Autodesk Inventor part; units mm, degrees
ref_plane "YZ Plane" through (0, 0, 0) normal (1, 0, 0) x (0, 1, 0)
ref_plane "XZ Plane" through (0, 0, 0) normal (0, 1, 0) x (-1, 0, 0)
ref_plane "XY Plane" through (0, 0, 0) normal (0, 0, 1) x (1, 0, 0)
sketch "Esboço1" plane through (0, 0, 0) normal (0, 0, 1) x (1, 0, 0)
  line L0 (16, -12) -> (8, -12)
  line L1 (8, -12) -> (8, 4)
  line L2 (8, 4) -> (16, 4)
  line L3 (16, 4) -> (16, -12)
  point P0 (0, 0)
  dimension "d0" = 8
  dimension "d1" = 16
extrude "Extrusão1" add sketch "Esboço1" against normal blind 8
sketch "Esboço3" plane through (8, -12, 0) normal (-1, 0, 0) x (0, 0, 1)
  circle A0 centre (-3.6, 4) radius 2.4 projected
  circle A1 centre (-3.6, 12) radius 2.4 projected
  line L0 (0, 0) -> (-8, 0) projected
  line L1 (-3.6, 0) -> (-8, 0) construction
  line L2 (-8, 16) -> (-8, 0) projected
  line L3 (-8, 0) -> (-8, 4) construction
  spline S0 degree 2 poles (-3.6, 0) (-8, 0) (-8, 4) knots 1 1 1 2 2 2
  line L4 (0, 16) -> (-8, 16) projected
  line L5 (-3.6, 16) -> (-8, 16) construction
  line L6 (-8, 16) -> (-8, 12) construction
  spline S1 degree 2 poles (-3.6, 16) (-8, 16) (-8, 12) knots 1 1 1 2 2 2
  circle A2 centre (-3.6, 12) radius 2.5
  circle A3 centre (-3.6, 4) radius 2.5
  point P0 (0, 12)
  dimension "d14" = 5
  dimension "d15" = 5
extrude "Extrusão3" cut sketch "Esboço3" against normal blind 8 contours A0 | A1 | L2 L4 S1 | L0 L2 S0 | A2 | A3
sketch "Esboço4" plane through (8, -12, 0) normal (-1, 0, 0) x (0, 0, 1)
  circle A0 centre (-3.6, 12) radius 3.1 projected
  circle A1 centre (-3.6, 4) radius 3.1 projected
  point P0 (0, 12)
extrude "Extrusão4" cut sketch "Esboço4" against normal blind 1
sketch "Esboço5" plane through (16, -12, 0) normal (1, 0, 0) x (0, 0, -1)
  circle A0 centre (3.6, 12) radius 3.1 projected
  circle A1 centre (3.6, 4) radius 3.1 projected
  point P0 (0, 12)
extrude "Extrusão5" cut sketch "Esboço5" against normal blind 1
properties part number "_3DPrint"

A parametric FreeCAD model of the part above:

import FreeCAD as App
import Part
import Sketcher

doc = App.newDocument("Part")
body = doc.addObject("PartDesign::Body", "Body")

# Sketch on XY plane
sketch1 = body.newObject("Sketcher::SketchObject", "Sketch")
sketch1.AttachmentSupport = (doc.getObject("XY_Plane"), [""])
sketch1.MapMode = "FlatFace"
sketch1.addGeometry([
    Part.LineSegment(App.Vector(8, -12, 0), App.Vector(16, -12, 0)),
    Part.LineSegment(App.Vector(16, -12, 0), App.Vector(16, 4, 0)),
    Part.LineSegment(App.Vector(16, 4, 0), App.Vector(8, 4, 0)),
    Part.LineSegment(App.Vector(8, 4, 0), App.Vector(8, -12, 0)),
], False)
sketch1.addConstraint([
    Sketcher.Constraint("Coincident", 0, 2, 1, 1),
    Sketcher.Constraint("Coincident", 1, 2, 2, 1),
    Sketcher.Constraint("Coincident", 2, 2, 3, 1),
    Sketcher.Constraint("Coincident", 3, 2, 0, 1),
    Sketcher.Constraint("Horizontal", 0),
    Sketcher.Constraint("Vertical", 1),
    Sketcher.Constraint("Horizontal", 2),
    Sketcher.Constraint("Vertical", 3),
    Sketcher.Constraint("DistanceX", 0, 1, 0, 2, 8.0),
    Sketcher.Constraint("DistanceY", 1, 1, 1, 2, 16.0),
    Sketcher.Constraint("DistanceX", -1, 1, 0, 2, 16.0),
    Sketcher.Constraint("DistanceY", 0, 2, -1, 1, 12.0),
])
pad1 = body.newObject("PartDesign::Pad", "Pad")
pad1.Profile = sketch1
pad1.Length = 8
pad1.Reversed = True

# Sketch on YZ plane
sketch2 = body.newObject("Sketcher::SketchObject", "Sketch001")
sketch2.AttachmentSupport = (doc.getObject("YZ_Plane"), [""])
sketch2.MapMode = "FlatFace"
sketch2.AttachmentOffset = App.Placement(App.Vector(0, 0, 8), App.Rotation())
sketch2.addGeometry([
    Part.Circle(App.Vector(-8, -3.6, 0), App.Vector(0, 0, 1), 2.5),  # 0
    Part.Circle(App.Vector(0, -3.6, 0), App.Vector(0, 0, 1), 2.5),  # 1
    Part.LineSegment(App.Vector(4, -8, 0), App.Vector(0, -8, 0)),  # 2
    Part.BSplineCurve([App.Vector(4, -3.6, 0), App.Vector(4, -8, 0), App.Vector(0, -8, 0)], [3, 3], [1, 2], False, 2, [1, 1, 1], False),  # 3
    Part.LineSegment(App.Vector(4, -3.6, 0), App.Vector(4, -8, 0)),  # 4
    Part.LineSegment(App.Vector(-12, -8, 0), App.Vector(-12, -3.6, 0)),  # 5
    Part.BSplineCurve([App.Vector(-12, -3.6, 0), App.Vector(-12, -8, 0), App.Vector(-8, -8, 0)], [3, 3], [1, 2], False, 2, [1, 1, 1], False),  # 6
    Part.LineSegment(App.Vector(-8, -8, 0), App.Vector(-12, -8, 0)),  # 7
], False)
sketch2.addConstraint([
    Sketcher.Constraint("Block", 3),
    Sketcher.Constraint("Block", 6),
    Sketcher.Constraint("Coincident", 2, 2, 3, 2),
    Sketcher.Constraint("Coincident", 3, 1, 4, 1),
    Sketcher.Constraint("Coincident", 4, 2, 2, 1),
    Sketcher.Constraint("Coincident", 5, 2, 6, 1),
    Sketcher.Constraint("Coincident", 6, 2, 7, 1),
    Sketcher.Constraint("Coincident", 7, 2, 5, 1),
    Sketcher.Constraint("Horizontal", 2),
    Sketcher.Constraint("Vertical", 4),
    Sketcher.Constraint("Vertical", 5),
    Sketcher.Constraint("Horizontal", 7),
    Sketcher.Constraint("Equal", 0, 1),
    Sketcher.Constraint("PointOnObject", 1, 3, -2),
    Sketcher.Constraint("Horizontal", 0, 3, 1, 3),
    Sketcher.Constraint("Horizontal", 1, 3, 5, 2),
    Sketcher.Constraint("Diameter", 0, 5.0),
    Sketcher.Constraint("DistanceX", 0, 3, -1, 1, 8.0),
])
pocket1 = body.newObject("PartDesign::Pocket", "Pocket")
pocket1.Profile = sketch2
pocket1.Length = 8
pocket1.Reversed = True

# Sketch on YZ plane
sketch3 = body.newObject("Sketcher::SketchObject", "Sketch002")
sketch3.AttachmentSupport = (doc.getObject("YZ_Plane"), [""])
sketch3.MapMode = "FlatFace"
sketch3.AttachmentOffset = App.Placement(App.Vector(0, 0, 8), App.Rotation())
sketch3.addGeometry([
    Part.Circle(App.Vector(0, -3.6, 0), App.Vector(0, 0, 1), 3.1),
    Part.Circle(App.Vector(-8, -3.6, 0), App.Vector(0, 0, 1), 3.1),
], False)
sketch3.addConstraint([
    Sketcher.Constraint("Equal", 0, 1),
    Sketcher.Constraint("PointOnObject", 0, 3, -2),
    Sketcher.Constraint("Horizontal", 0, 3, 1, 3),
    Sketcher.Constraint("Diameter", 0, 6.2),
    Sketcher.Constraint("DistanceX", 1, 3, -1, 1, 8.0),
    Sketcher.Constraint("DistanceY", 0, 3, -1, 1, 3.6),
])
pocket2 = body.newObject("PartDesign::Pocket", "Pocket001")
pocket2.Profile = sketch3
pocket2.Length = 1
pocket2.Reversed = True

# Sketch on YZ plane
sketch4 = body.newObject("Sketcher::SketchObject", "Sketch003")
sketch4.AttachmentSupport = (doc.getObject("YZ_Plane"), [""])
sketch4.MapMode = "FlatFace"
sketch4.AttachmentOffset = App.Placement(App.Vector(0, 0, 16), App.Rotation())
sketch4.addGeometry([
    Part.Circle(App.Vector(0, -3.6, 0), App.Vector(0, 0, 1), 3.1),
    Part.Circle(App.Vector(-8, -3.6, 0), App.Vector(0, 0, 1), 3.1),
], False)
sketch4.addConstraint([
    Sketcher.Constraint("Equal", 0, 1),
    Sketcher.Constraint("PointOnObject", 0, 3, -2),
    Sketcher.Constraint("Horizontal", 0, 3, 1, 3),
    Sketcher.Constraint("Diameter", 0, 6.2),
    Sketcher.Constraint("DistanceX", 1, 3, -1, 1, 8.0),
    Sketcher.Constraint("DistanceY", 0, 3, -1, 1, 3.6),
])
pocket3 = body.newObject("PartDesign::Pocket", "Pocket002")
pocket3.Profile = sketch4
pocket3.Length = 1

doc.recompute()
